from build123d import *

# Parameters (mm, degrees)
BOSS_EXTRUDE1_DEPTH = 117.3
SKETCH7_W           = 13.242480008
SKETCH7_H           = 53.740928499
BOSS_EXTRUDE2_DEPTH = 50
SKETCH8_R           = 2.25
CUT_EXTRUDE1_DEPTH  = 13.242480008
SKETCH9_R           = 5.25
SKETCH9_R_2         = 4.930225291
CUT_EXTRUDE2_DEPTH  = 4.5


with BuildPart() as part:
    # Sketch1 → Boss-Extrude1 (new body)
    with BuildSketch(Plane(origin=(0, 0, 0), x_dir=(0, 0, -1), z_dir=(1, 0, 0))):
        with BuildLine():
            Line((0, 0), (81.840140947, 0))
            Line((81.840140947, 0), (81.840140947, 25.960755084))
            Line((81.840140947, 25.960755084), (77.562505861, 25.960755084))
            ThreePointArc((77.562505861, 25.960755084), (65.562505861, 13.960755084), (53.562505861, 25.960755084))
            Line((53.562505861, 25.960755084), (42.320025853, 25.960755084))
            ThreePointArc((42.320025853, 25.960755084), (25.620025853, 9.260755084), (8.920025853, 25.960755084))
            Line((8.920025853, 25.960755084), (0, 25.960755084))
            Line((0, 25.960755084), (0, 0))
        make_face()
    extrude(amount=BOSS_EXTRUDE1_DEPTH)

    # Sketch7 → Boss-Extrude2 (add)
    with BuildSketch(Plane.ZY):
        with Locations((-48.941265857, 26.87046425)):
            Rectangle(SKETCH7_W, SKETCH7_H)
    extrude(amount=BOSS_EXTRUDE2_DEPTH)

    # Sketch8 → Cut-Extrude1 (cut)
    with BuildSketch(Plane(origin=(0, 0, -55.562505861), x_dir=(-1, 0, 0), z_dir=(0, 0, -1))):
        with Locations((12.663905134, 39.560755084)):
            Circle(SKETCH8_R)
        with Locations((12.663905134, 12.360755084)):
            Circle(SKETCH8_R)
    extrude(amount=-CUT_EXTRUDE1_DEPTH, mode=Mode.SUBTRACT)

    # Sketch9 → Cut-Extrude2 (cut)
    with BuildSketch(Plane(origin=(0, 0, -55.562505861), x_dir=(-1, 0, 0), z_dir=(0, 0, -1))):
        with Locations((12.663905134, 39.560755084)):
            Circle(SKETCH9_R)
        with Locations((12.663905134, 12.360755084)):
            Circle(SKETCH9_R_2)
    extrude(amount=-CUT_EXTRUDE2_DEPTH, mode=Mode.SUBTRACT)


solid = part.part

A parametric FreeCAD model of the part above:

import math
import FreeCAD as App
import Part
import Sketcher

V = App.Vector

doc = App.newDocument("Part")
body = doc.addObject("PartDesign::Body", "Body")

# Sketch on YZ plane
sketch1 = body.newObject("Sketcher::SketchObject", "Sketch")
sketch1.AttachmentSupport = (doc.getObject("YZ_Plane"), [""])
sketch1.MapMode = "FlatFace"
sketch1.addGeometry([
    Part.LineSegment(V(0, 0, 0), V(0, -81.8, 0)),  # 0
    Part.LineSegment(V(0, -81.8, 0), V(26, -81.8, 0)),  # 1
    Part.LineSegment(V(26, -81.8, 0), V(26, -77.6, 0)),  # 2
    Part.ArcOfCircle(Part.Circle(V(26, -65.6, 0), V(0, 0, 1), 12), math.radians(90), math.radians(270)),  # 3
    Part.LineSegment(V(26, -53.6, 0), V(26, -42.3, 0)),  # 4
    Part.ArcOfCircle(Part.Circle(V(26, -25.6, 0), V(0, 0, 1), 16.7), math.radians(90), math.radians(270)),  # 5
    Part.LineSegment(V(26, -8.9, 0), V(26, 0, 0)),  # 6
    Part.LineSegment(V(26, 0, 0), V(0, 0, 0)),  # 7
], False)
sketch1.addConstraint([
    Sketcher.Constraint("Coincident", 0, 2, 1, 1),
    Sketcher.Constraint("Coincident", 1, 2, 2, 1),
    Sketcher.Constraint("Coincident", 2, 2, 3, 2),
    Sketcher.Constraint("Coincident", 3, 1, 4, 1),
    Sketcher.Constraint("Coincident", 4, 2, 5, 2),
    Sketcher.Constraint("Coincident", 5, 1, 6, 1),
    Sketcher.Constraint("Coincident", 6, 2, 7, 1),
    Sketcher.Constraint("Coincident", 7, 2, 0, 1),
    Sketcher.Constraint("Vertical", 0),
    Sketcher.Constraint("Horizontal", 1),
    Sketcher.Constraint("Vertical", 2),
    Sketcher.Constraint("Vertical", 4),
    Sketcher.Constraint("Vertical", 6),
    Sketcher.Constraint("Horizontal", 7),
    Sketcher.Constraint("Coincident", 7, 2, -1, 1),
    Sketcher.Constraint("Vertical", 3, 3, 5, 3),
    Sketcher.Constraint("Vertical", 5, 3, 1, 2),
    Sketcher.Constraint("Vertical", 2, 2, 3, 1),
    Sketcher.Constraint("Vertical", 4, 2, 5, 1),
    Sketcher.Constraint("Radius", 3, 12.0),
    Sketcher.Constraint("Radius", 5, 16.7),
    Sketcher.Constraint("DistanceY", 0, 2, 0, 1, 81.840141),
    Sketcher.Constraint("DistanceY", 4, 1, 4, 2, 11.24248),
    Sketcher.Constraint("DistanceX", 1, 1, 1, 2, 25.960755),
    Sketcher.Constraint("DistanceY", 2, 1, 2, 2, 4.277635),
])
pad1 = body.newObject("PartDesign::Pad", "Pad")
pad1.Profile = sketch1
pad1.Length = 117.3

# Sketch on YZ plane
sketch2 = body.newObject("Sketcher::SketchObject", "Sketch001")
sketch2.AttachmentSupport = (doc.getObject("YZ_Plane"), [""])
sketch2.MapMode = "FlatFace"
sketch2.addGeometry([
    Part.LineSegment(V(54, -56, 0), V(0, -56, 0)),
    Part.LineSegment(V(0, -56, 0), V(0, -42, 0)),
    Part.LineSegment(V(0, -42, 0), V(54, -42, 0)),
    Part.LineSegment(V(54, -42, 0), V(54, -56, 0)),
], False)
sketch2.addConstraint([
    Sketcher.Constraint("Coincident", 0, 2, 1, 1),
    Sketcher.Constraint("Coincident", 1, 2, 2, 1),
    Sketcher.Constraint("Coincident", 2, 2, 3, 1),
    Sketcher.Constraint("Coincident", 3, 2, 0, 1),
    Sketcher.Constraint("Horizontal", 0),
    Sketcher.Constraint("Vertical", 1),
    Sketcher.Constraint("Horizontal", 2),
    Sketcher.Constraint("Vertical", 3),
    Sketcher.Constraint("PointOnObject", 0, 2, -2),
    Sketcher.Constraint("DistanceX", 0, 2, 0, 1, 53.740928),
    Sketcher.Constraint("DistanceY", 1, 1, 1, 2, 13.24248),
    Sketcher.Constraint("DistanceY", 0, 2, -1, 1, 55.562506),
])
pad2 = body.newObject("PartDesign::Pad", "Pad001")
pad2.Profile = sketch2
pad2.Length = 50
pad2.Reversed = True

# Sketch on XY plane
sketch3 = body.newObject("Sketcher::SketchObject", "Sketch002")
sketch3.AttachmentSupport = (doc.getObject("XY_Plane"), [""])
sketch3.MapMode = "FlatFace"
sketch3.AttachmentOffset = App.Placement(V(0, 0, -55.562506), App.Rotation())
sketch3.addGeometry([
    Part.Circle(V(-12.7, 39.6, 0), V(0, 0, 1), 2.2),
    Part.Circle(V(-12.7, 12.4, 0), V(0, 0, 1), 2.2),
], False)
sketch3.addConstraint([
    Sketcher.Constraint("Equal", 0, 1),
    Sketcher.Constraint("Vertical", 0, 3, 1, 3),
    Sketcher.Constraint("Diameter", 0, 4.5),
    Sketcher.Constraint("DistanceY", 1, 3, 0, 3, 27.2),
    Sketcher.Constraint("DistanceX", 0, 3, -1, 1, 12.663905),
    Sketcher.Constraint("DistanceY", -1, 1, 0, 3, 39.560755),
])
pocket1 = body.newObject("PartDesign::Pocket", "Pocket")
pocket1.Profile = sketch3
pocket1.Length = 13.24248
pocket1.Reversed = True

# Sketch on XY plane
sketch4 = body.newObject("Sketcher::SketchObject", "Sketch003")
sketch4.AttachmentSupport = (doc.getObject("XY_Plane"), [""])
sketch4.MapMode = "FlatFace"
sketch4.AttachmentOffset = App.Placement(V(0, 0, -55.562506), App.Rotation())
sketch4.addGeometry([
    Part.Circle(V(-12.7, 39.6, 0), V(0, 0, 1), 5.2),
    Part.Circle(V(-12.7, 12.4, 0), V(0, 0, 1), 4.9),
], False)
sketch4.addConstraint([
    Sketcher.Constraint("Vertical", 0, 3, 1, 3),
    Sketcher.Constraint("Diameter", 0, 10.5),
    Sketcher.Constraint("DistanceY", 1, 3, 0, 3, 27.2),
    Sketcher.Constraint("Diameter", 1, 9.860451),
    Sketcher.Constraint("DistanceX", 0, 3, -1, 1, 12.663905),
    Sketcher.Constraint("DistanceY", -1, 1, 0, 3, 39.560755),
])
pocket2 = body.newObject("PartDesign::Pocket", "Pocket001")
pocket2.Profile = sketch4
pocket2.Length = 4.5
pocket2.Reversed = True

doc.recompute()
